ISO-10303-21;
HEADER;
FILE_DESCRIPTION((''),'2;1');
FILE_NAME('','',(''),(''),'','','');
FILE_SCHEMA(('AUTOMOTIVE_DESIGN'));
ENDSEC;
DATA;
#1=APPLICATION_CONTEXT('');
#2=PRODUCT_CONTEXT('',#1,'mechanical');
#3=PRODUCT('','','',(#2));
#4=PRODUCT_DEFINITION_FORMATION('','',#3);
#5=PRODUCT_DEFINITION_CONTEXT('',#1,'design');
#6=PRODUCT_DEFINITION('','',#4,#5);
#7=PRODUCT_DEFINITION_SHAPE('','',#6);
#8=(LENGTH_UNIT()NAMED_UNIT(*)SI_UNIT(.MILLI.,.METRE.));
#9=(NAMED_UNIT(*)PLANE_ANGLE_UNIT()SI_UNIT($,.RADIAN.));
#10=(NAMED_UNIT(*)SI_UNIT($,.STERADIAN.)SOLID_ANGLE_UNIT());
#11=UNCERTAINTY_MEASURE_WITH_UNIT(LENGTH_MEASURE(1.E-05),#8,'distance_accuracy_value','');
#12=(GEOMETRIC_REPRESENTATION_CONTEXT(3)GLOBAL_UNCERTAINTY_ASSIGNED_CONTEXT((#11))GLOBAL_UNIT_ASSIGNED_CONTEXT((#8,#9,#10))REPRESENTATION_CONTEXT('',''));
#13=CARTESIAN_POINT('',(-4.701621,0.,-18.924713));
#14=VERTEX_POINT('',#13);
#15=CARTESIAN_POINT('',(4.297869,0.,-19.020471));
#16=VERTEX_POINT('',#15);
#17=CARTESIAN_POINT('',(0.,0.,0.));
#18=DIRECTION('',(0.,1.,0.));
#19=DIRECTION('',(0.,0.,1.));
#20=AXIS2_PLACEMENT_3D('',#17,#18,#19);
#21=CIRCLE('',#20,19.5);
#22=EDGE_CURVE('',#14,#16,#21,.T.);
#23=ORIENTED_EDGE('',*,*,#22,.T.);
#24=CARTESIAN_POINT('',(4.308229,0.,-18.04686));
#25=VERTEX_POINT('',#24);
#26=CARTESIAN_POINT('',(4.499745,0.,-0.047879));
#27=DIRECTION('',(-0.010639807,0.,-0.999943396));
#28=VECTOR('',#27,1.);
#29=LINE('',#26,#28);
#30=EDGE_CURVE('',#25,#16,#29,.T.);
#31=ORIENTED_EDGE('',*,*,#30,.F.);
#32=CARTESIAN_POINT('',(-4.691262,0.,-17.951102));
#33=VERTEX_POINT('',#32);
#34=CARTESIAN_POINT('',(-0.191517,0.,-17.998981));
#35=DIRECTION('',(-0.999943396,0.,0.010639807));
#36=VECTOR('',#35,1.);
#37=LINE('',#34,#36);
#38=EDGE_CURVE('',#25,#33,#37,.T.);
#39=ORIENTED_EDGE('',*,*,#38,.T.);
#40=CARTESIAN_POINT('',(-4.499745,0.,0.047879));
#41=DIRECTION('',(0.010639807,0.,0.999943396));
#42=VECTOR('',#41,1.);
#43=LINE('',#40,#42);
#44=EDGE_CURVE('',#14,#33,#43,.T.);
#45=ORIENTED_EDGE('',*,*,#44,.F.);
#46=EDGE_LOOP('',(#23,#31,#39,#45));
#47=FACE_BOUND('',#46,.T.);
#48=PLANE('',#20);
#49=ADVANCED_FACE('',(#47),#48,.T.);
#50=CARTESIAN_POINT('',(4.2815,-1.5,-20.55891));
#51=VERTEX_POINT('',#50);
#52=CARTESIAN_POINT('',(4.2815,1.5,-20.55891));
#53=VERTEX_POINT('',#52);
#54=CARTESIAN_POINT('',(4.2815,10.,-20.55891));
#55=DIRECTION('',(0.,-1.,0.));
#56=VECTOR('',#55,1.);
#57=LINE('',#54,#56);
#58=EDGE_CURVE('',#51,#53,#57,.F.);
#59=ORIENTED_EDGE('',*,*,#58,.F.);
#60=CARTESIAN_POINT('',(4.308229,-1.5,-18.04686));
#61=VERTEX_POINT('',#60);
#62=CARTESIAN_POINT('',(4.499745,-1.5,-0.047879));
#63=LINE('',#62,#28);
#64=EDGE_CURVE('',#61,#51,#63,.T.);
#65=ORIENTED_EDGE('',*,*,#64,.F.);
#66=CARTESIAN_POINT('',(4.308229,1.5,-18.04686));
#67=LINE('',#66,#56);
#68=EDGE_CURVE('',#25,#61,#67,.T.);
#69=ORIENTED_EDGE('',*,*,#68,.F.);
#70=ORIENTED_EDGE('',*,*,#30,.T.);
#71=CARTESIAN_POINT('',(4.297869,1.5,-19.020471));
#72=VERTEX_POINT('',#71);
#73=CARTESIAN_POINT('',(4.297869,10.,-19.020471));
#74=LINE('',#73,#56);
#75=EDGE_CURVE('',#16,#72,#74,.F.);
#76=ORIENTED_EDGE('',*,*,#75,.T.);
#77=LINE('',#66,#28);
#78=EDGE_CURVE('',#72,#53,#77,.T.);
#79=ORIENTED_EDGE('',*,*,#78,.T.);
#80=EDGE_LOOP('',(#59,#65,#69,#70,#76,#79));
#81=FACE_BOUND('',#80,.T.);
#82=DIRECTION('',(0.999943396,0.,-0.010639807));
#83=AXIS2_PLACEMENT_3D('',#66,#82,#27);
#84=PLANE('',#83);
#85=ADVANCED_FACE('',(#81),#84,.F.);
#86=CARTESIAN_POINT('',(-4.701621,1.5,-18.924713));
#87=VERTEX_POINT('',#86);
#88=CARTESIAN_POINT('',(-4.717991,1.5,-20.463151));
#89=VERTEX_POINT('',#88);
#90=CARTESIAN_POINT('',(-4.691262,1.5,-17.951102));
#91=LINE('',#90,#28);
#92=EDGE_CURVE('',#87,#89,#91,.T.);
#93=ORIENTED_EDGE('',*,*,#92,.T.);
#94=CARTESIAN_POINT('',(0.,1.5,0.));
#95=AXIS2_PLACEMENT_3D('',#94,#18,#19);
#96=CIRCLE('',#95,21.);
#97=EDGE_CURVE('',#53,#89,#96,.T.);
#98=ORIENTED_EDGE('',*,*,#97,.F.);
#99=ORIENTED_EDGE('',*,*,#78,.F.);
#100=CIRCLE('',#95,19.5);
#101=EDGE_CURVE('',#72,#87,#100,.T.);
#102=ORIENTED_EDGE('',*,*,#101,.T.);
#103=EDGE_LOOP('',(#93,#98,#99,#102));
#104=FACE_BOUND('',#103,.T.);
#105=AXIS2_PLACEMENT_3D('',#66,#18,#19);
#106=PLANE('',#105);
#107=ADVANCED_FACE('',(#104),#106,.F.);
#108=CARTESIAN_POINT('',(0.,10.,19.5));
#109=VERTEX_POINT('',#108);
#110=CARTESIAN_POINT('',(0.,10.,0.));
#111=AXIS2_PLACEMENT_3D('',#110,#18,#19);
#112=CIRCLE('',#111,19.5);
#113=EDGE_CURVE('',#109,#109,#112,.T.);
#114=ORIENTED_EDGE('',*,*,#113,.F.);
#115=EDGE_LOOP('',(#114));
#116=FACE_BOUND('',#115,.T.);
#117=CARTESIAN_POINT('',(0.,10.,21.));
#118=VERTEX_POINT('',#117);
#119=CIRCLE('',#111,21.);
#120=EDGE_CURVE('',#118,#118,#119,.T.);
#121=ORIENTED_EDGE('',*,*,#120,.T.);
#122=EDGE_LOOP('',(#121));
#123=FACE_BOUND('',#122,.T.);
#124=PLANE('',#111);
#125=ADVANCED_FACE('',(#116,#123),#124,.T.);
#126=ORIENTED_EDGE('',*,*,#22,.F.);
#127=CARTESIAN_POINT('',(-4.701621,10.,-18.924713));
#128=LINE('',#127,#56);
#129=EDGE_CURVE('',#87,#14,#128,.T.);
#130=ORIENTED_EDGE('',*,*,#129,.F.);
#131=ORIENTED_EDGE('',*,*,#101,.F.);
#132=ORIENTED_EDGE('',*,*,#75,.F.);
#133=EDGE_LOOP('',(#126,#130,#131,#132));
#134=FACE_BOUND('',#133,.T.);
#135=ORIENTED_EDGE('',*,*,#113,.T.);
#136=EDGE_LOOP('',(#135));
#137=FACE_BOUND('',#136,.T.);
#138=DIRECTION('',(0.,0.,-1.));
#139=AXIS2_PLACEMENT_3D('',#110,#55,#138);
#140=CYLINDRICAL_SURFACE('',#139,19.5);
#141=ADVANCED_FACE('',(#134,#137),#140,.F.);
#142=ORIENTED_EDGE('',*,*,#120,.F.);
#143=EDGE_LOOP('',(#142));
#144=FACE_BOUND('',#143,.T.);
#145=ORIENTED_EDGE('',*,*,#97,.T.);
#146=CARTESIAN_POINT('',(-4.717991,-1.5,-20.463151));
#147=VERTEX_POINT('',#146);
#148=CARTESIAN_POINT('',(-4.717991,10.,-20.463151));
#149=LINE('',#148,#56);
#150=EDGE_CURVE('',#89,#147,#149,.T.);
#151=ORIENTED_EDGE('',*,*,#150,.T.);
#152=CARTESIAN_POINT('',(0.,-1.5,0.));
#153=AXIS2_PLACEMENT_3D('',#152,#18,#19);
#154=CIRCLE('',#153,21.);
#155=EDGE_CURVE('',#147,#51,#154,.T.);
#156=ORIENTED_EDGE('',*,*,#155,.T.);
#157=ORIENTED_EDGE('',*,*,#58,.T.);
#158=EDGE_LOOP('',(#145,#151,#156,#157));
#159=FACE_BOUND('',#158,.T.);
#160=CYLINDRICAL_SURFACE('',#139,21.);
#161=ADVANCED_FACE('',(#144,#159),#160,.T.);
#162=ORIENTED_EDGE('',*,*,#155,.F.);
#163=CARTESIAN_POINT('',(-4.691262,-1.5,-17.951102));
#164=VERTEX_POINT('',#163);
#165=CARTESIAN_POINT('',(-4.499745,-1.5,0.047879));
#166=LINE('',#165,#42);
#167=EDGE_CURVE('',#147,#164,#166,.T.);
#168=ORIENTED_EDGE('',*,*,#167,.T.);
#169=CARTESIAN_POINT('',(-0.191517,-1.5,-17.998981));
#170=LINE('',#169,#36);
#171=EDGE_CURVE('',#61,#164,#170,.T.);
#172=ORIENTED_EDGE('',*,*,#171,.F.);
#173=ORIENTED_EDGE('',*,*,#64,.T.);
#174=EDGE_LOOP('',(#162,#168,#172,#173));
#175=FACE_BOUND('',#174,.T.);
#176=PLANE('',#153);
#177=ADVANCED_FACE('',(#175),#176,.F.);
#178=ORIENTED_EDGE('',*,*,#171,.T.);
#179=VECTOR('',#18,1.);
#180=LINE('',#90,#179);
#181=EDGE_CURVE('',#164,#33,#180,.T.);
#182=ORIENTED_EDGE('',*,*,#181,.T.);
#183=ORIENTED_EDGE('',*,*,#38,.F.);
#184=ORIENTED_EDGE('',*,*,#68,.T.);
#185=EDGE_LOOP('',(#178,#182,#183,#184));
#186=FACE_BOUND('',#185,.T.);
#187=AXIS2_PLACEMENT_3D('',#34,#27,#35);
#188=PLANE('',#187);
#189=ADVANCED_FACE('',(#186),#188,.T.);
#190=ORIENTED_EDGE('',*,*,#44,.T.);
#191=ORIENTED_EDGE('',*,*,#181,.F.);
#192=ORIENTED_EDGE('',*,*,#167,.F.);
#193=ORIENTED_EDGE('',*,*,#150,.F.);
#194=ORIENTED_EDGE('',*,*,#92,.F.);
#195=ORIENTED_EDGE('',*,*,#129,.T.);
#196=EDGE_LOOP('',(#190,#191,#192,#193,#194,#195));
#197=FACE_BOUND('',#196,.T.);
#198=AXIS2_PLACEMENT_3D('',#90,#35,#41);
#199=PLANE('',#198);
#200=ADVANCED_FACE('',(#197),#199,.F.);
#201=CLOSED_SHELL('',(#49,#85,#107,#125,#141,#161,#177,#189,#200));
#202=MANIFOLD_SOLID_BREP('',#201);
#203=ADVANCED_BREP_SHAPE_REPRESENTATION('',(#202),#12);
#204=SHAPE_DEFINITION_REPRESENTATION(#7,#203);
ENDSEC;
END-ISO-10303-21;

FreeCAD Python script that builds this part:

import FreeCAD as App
import Part
import Sketcher
Q = App.Units.Quantity


def faces_at(feature, points):
    """Names of the faces that lie closest to the given points."""
    faces = feature.Shape.Faces
    near = lambda p: min(range(len(faces)), key=lambda i: faces[i].distToShape(Part.Vertex(*p))[0])
    return sorted({f"Face{near(p) + 1}" for p in points})

doc = App.newDocument("Part")
params = doc.addObject("Spreadsheet::Sheet", "Params")
for row, (alias, value) in enumerate([
    ("sketch1_diameter", "39 mm"),
    ("pad1_length", "10 mm"),
    ("thickness_wall", "1.5 mm"),
    ("sketch2_width", "9 mm"),
    ("sketch2_height", "6 mm"),
    ("pocket1_length", "3 mm"),
], start=1):
    params.set(f"A{row}", alias)
    params.set(f"B{row}", "=" + value)
    params.setAlias(f"B{row}", alias)

body = doc.addObject("PartDesign::Body", "Body")

# Sketch on XZ plane
sketch1 = body.newObject("Sketcher::SketchObject", "Sketch")
sketch1.AttachmentSupport = (doc.getObject("XZ_Plane"), [""])
sketch1.MapMode = "FlatFace"
sketch1.addGeometry(Part.Circle(App.Vector(0, 0, 0), App.Vector(0, 0, 1), 20), False)
sketch1.addConstraint([
    Sketcher.Constraint("Coincident", 0, 3, -1, 1),
    Sketcher.Constraint("Diameter", 0, Q("39 mm")),
])
sketch1.setExpression("Constraints[1]", "Params.sketch1_diameter")
pad1 = body.newObject("PartDesign::Pad", "Pad")
pad1.Profile = sketch1
pad1.setExpression("Length", "Params.pad1_length")
pad1.Reversed = True
doc.recompute()

thickness = body.newObject("PartDesign::Thickness", "Thickness")
thickness.Base = (pad1, faces_at(pad1, [(0, 10, 0)]))
thickness.setExpression("Value", "Params.thickness_wall")
thickness.Reversed = False
thickness.Join = "Intersection"

# Sketch on an angled plane
sketch2 = body.newObject("Sketcher::SketchObject", "Sketch001")
sketch2.Placement = App.Placement(App.Vector(-35.117811, 32.604175, -20.627521), App.Rotation(App.Vector(-0.999943396, 0, 0.010639807), App.Vector(0, 1.000000001, 0), App.Vector(-0.010639807, 0, -0.999943396), "ZXY"))
sketch2.addGeometry([
    Part.LineSegment(App.Vector(-39, -31, 0), App.Vector(-39, -37, 0)),
    Part.LineSegment(App.Vector(-39, -37, 0), App.Vector(-30, -37, 0)),
    Part.LineSegment(App.Vector(-30, -37, 0), App.Vector(-30, -31, 0)),
    Part.LineSegment(App.Vector(-30, -31, 0), App.Vector(-39, -31, 0)),
], False)
sketch2.addConstraint([
    Sketcher.Constraint("Coincident", 0, 2, 1, 1),
    Sketcher.Constraint("Coincident", 1, 2, 2, 1),
    Sketcher.Constraint("Coincident", 2, 2, 3, 1),
    Sketcher.Constraint("Coincident", 3, 2, 0, 1),
    Sketcher.Constraint("Vertical", 0),
    Sketcher.Constraint("Horizontal", 1),
    Sketcher.Constraint("Vertical", 2),
    Sketcher.Constraint("Horizontal", 3),
    Sketcher.Constraint("DistanceX", 1, 1, 1, 2, Q("9 mm")),
    Sketcher.Constraint("DistanceY", 0, 2, 0, 1, Q("6 mm")),
    Sketcher.Constraint("DistanceX", 0, 2, -1, 1, Q("39.39635 mm")),
    Sketcher.Constraint("DistanceY", 0, 2, -1, 1, Q("37.104175 mm")),
])
sketch2.setExpression("Constraints[8]", "Params.sketch2_width")
sketch2.setExpression("Constraints[9]", "Params.sketch2_height")
pocket1 = body.newObject("PartDesign::Pocket", "Pocket")
pocket1.Profile = sketch2
pocket1.setExpression("Length", "Params.pocket1_length")

doc.recompute()
